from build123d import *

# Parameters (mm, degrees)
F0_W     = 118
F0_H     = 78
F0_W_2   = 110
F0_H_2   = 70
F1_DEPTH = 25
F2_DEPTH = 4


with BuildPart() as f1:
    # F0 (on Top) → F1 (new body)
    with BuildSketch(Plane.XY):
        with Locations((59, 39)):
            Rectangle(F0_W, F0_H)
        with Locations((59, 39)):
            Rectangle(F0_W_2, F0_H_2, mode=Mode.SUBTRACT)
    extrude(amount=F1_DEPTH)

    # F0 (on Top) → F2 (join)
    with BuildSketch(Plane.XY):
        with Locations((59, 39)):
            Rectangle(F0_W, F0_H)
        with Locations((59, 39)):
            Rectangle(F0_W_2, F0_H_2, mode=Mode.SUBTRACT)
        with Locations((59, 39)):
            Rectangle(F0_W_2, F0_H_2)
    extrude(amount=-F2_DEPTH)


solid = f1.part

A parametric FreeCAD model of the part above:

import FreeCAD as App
import Part
import Sketcher
from FreeCAD import Vector
Q = App.Units.Quantity

doc = App.newDocument("Part")
params = doc.addObject("Spreadsheet::Sheet", "Params")
for row, (alias, value) in enumerate([
    ("sketch1_width", "118 mm"),
    ("sketch1_width2", "110 mm"),
    ("sketch1_height", "78 mm"),
    ("sketch1_height2", "70 mm"),
    ("pad1_length", "25 mm"),
    ("sketch2_width", "118 mm"),
    ("sketch2_height", "78 mm"),
    ("pad2_length", "4 mm"),
], start=1):
    params.set(f"A{row}", alias)
    params.set(f"B{row}", "=" + value)
    params.setAlias(f"B{row}", alias)

body = doc.addObject("PartDesign::Body", "Body")

sketch1 = doc.addObject("Sketcher::SketchObject", "Sketch")
body.addObject(sketch1)
sketch1.AttachmentSupport = (doc.XY_Plane, [""])
sketch1.MapMode = "FlatFace"
sketch1.addGeometry(Part.LineSegment(Vector(0, 78, 0), Vector(0, 0, 0)), False)
sketch1.addGeometry(Part.LineSegment(Vector(0, 0, 0), Vector(118, 0, 0)), False)
sketch1.addGeometry(Part.LineSegment(Vector(118, 0, 0), Vector(118, 78, 0)), False)
sketch1.addGeometry(Part.LineSegment(Vector(118, 78, 0), Vector(0, 78, 0)), False)
sketch1.addGeometry(Part.LineSegment(Vector(114, 4, 0), Vector(4, 4, 0)), False)
sketch1.addGeometry(Part.LineSegment(Vector(4, 4, 0), Vector(4, 74, 0)), False)
sketch1.addGeometry(Part.LineSegment(Vector(4, 74, 0), Vector(114, 74, 0)), False)
sketch1.addGeometry(Part.LineSegment(Vector(114, 74, 0), Vector(114, 4, 0)), False)
sketch1.addConstraint(Sketcher.Constraint("Coincident", 0, 2, 1, 1))
sketch1.addConstraint(Sketcher.Constraint("Coincident", 1, 2, 2, 1))
sketch1.addConstraint(Sketcher.Constraint("Coincident", 2, 2, 3, 1))
sketch1.addConstraint(Sketcher.Constraint("Coincident", 3, 2, 0, 1))
sketch1.addConstraint(Sketcher.Constraint("Coincident", 4, 2, 5, 1))
sketch1.addConstraint(Sketcher.Constraint("Coincident", 5, 2, 6, 1))
sketch1.addConstraint(Sketcher.Constraint("Coincident", 6, 2, 7, 1))
sketch1.addConstraint(Sketcher.Constraint("Coincident", 7, 2, 4, 1))
sketch1.addConstraint(Sketcher.Constraint("Vertical", 0))
sketch1.addConstraint(Sketcher.Constraint("Horizontal", 1))
sketch1.addConstraint(Sketcher.Constraint("Vertical", 2))
sketch1.addConstraint(Sketcher.Constraint("Horizontal", 3))
sketch1.addConstraint(Sketcher.Constraint("Horizontal", 4))
sketch1.addConstraint(Sketcher.Constraint("Vertical", 5))
sketch1.addConstraint(Sketcher.Constraint("Horizontal", 6))
sketch1.addConstraint(Sketcher.Constraint("Vertical", 7))
sketch1.addConstraint(Sketcher.Constraint("Coincident", 0, 2, -1, 1))
sketch1.addConstraint(Sketcher.Constraint("DistanceX", 1, 1, 1, 2, Q("118 mm")))
sketch1.addConstraint(Sketcher.Constraint("DistanceX", 4, 2, 4, 1, Q("110 mm")))
sketch1.addConstraint(Sketcher.Constraint("DistanceY", 0, 2, 0, 1, Q("78 mm")))
sketch1.addConstraint(Sketcher.Constraint("DistanceY", 5, 1, 5, 2, Q("70 mm")))
sketch1.addConstraint(Sketcher.Constraint("DistanceX", -1, 1, 4, 2, Q("4 mm")))
sketch1.addConstraint(Sketcher.Constraint("DistanceY", -1, 1, 4, 2, Q("4 mm")))
sketch1.setExpression("Constraints[17]", "Params.sketch1_width")
sketch1.setExpression("Constraints[18]", "Params.sketch1_width2")
sketch1.setExpression("Constraints[19]", "Params.sketch1_height")
sketch1.setExpression("Constraints[20]", "Params.sketch1_height2")
pad1 = doc.addObject("PartDesign::Pad", "Pad")
body.addObject(pad1)
pad1.Profile = sketch1
pad1.setExpression("Length", "Params.pad1_length")

sketch2 = doc.addObject("Sketcher::SketchObject", "Sketch001")
body.addObject(sketch2)
sketch2.AttachmentSupport = (doc.XY_Plane, [""])
sketch2.MapMode = "FlatFace"
sketch2.addGeometry(Part.LineSegment(Vector(0, 78, 0), Vector(0, 0, 0)), False)
sketch2.addGeometry(Part.LineSegment(Vector(0, 0, 0), Vector(118, 0, 0)), False)
sketch2.addGeometry(Part.LineSegment(Vector(118, 0, 0), Vector(118, 78, 0)), False)
sketch2.addGeometry(Part.LineSegment(Vector(118, 78, 0), Vector(0, 78, 0)), False)
sketch2.addConstraint(Sketcher.Constraint("Coincident", 0, 2, 1, 1))
sketch2.addConstraint(Sketcher.Constraint("Coincident", 1, 2, 2, 1))
sketch2.addConstraint(Sketcher.Constraint("Coincident", 2, 2, 3, 1))
sketch2.addConstraint(Sketcher.Constraint("Coincident", 3, 2, 0, 1))
sketch2.addConstraint(Sketcher.Constraint("Vertical", 0))
sketch2.addConstraint(Sketcher.Constraint("Horizontal", 1))
sketch2.addConstraint(Sketcher.Constraint("Vertical", 2))
sketch2.addConstraint(Sketcher.Constraint("Horizontal", 3))
sketch2.addConstraint(Sketcher.Constraint("Coincident", 0, 2, -1, 1))
sketch2.addConstraint(Sketcher.Constraint("DistanceX", 1, 1, 1, 2, Q("118 mm")))
sketch2.addConstraint(Sketcher.Constraint("DistanceY", 0, 2, 0, 1, Q("78 mm")))
sketch2.setExpression("Constraints[9]", "Params.sketch2_width")
sketch2.setExpression("Constraints[10]", "Params.sketch2_height")
pad2 = doc.addObject("PartDesign::Pad", "Pad001")
body.addObject(pad2)
pad2.Profile = sketch2
pad2.setExpression("Length", "Params.pad2_length")
pad2.Reversed = True

doc.recompute()
